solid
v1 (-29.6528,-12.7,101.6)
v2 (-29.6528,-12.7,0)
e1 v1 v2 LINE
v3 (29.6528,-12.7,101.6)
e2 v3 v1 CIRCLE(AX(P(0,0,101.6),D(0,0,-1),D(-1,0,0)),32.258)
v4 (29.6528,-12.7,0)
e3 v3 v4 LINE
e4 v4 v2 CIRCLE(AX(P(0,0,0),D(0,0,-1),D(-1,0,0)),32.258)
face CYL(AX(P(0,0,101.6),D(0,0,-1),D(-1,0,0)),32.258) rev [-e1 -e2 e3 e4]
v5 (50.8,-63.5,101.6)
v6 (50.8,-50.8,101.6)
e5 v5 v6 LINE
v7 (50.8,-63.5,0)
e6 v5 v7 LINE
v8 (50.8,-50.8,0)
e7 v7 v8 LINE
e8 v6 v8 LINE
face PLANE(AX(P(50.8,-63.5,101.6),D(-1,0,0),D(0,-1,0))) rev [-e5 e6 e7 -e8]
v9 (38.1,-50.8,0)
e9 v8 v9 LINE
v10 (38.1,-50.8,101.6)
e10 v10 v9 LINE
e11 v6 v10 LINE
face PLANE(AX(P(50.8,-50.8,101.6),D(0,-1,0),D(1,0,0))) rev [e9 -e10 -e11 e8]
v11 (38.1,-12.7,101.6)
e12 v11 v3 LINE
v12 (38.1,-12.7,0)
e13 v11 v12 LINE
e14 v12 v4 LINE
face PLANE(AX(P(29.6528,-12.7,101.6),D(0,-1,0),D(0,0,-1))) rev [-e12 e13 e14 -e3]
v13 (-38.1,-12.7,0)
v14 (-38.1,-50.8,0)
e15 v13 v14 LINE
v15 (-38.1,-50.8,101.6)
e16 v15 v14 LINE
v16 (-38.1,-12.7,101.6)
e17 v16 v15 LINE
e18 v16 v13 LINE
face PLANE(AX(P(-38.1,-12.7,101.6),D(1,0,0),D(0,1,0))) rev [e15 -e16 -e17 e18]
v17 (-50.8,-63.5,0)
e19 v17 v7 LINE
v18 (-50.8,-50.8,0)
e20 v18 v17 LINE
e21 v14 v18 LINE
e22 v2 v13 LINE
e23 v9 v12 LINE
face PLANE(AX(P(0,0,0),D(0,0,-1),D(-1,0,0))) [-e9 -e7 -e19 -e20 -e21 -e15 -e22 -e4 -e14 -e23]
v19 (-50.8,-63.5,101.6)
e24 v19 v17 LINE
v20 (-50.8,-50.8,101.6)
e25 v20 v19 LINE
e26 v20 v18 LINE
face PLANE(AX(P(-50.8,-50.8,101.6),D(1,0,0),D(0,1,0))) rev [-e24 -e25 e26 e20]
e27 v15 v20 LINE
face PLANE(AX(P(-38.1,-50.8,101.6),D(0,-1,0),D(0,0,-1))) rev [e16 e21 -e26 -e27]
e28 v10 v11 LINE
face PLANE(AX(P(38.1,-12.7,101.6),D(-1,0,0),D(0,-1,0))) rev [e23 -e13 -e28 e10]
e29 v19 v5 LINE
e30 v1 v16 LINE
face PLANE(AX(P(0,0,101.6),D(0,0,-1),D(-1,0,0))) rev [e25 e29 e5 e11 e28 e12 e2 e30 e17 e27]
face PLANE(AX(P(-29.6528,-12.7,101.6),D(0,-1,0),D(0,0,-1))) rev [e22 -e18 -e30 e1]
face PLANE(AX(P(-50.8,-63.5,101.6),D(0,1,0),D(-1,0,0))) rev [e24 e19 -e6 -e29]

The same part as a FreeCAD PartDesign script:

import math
import FreeCAD as App
import Part
import Sketcher
Q = App.Units.Quantity

doc = App.newDocument("Part")
body = doc.addObject("PartDesign::Body", "Body")

# Sketch on XY plane
sketch1 = doc.addObject("Sketcher::SketchObject", "Sketch")
body.addObject(sketch1)
sketch1.AttachmentSupport = (doc.XY_Plane, [""])
sketch1.MapMode = "FlatFace"
sketch1.addGeometry([
    Part.LineSegment(App.Vector(-50.8, -63.5, 0), App.Vector(50.8, -63.5, 0)),  # 0
    Part.LineSegment(App.Vector(50.8, -63.5, 0), App.Vector(50.8, -50.8, 0)),  # 1
    Part.LineSegment(App.Vector(50.8, -50.8, 0), App.Vector(38.1, -50.8, 0)),  # 2
    Part.LineSegment(App.Vector(38.1, -50.8, 0), App.Vector(38.1, -12.7, 0)),  # 3
    Part.LineSegment(App.Vector(38.1, -12.7, 0), App.Vector(29.6528, -12.7, 0)),  # 4
    Part.ArcOfCircle(Part.Circle(App.Vector(0, 0, 0), App.Vector(0, 0, 1), 32.258), math.radians(-156.81503), math.radians(-23.18497)),  # 5
    Part.LineSegment(App.Vector(-29.6528, -12.7, 0), App.Vector(-38.1, -12.7, 0)),  # 6
    Part.LineSegment(App.Vector(-38.1, -12.7, 0), App.Vector(-38.1, -50.8, 0)),  # 7
    Part.LineSegment(App.Vector(-38.1, -50.8, 0), App.Vector(-50.8, -50.8, 0)),  # 8
    Part.LineSegment(App.Vector(-50.8, -50.8, 0), App.Vector(-50.8, -63.5, 0)),  # 9
], False)
sketch1.addConstraint([
    Sketcher.Constraint("Coincident", 0, 2, 1, 1),
    Sketcher.Constraint("Coincident", 1, 2, 2, 1),
    Sketcher.Constraint("Coincident", 2, 2, 3, 1),
    Sketcher.Constraint("Coincident", 3, 2, 4, 1),
    Sketcher.Constraint("Coincident", 4, 2, 5, 2),
    Sketcher.Constraint("Coincident", 5, 1, 6, 1),
    Sketcher.Constraint("Coincident", 6, 2, 7, 1),
    Sketcher.Constraint("Coincident", 7, 2, 8, 1),
    Sketcher.Constraint("Coincident", 8, 2, 9, 1),
    Sketcher.Constraint("Coincident", 9, 2, 0, 1),
    Sketcher.Constraint("Horizontal", 0),
    Sketcher.Constraint("Vertical", 1),
    Sketcher.Constraint("Horizontal", 2),
    Sketcher.Constraint("Vertical", 3),
    Sketcher.Constraint("Horizontal", 4),
    Sketcher.Constraint("Horizontal", 6),
    Sketcher.Constraint("Vertical", 7),
    Sketcher.Constraint("Horizontal", 8),
    Sketcher.Constraint("Vertical", 9),
    Sketcher.Constraint("Coincident", 5, 3, -1, 1),
    Sketcher.Constraint("Symmetric", 3, 2, 6, 2, -2),
    Sketcher.Constraint("Symmetric", 1, 2, 8, 2, -2),
    Sketcher.Constraint("Equal", 8, 1),
    Sketcher.Constraint("DistanceX", 0, 1, 0, 2, Q("4 in")),
    Sketcher.Constraint("Radius", 5, Q("1.27 in")),
    Sketcher.Constraint("DistanceX", 2, 2, 2, 1, Q("0.5 in")),
    Sketcher.Constraint("DistanceY", 3, 1, 3, 2, Q("1.5 in")),
    Sketcher.Constraint("DistanceY", 1, 2, -1, 1, Q("2 in")),
])
pad1 = doc.addObject("PartDesign::Pad", "Pad")
body.addObject(pad1)
pad1.Profile = sketch1
pad1.Length = Q("4 in")

doc.recompute()
